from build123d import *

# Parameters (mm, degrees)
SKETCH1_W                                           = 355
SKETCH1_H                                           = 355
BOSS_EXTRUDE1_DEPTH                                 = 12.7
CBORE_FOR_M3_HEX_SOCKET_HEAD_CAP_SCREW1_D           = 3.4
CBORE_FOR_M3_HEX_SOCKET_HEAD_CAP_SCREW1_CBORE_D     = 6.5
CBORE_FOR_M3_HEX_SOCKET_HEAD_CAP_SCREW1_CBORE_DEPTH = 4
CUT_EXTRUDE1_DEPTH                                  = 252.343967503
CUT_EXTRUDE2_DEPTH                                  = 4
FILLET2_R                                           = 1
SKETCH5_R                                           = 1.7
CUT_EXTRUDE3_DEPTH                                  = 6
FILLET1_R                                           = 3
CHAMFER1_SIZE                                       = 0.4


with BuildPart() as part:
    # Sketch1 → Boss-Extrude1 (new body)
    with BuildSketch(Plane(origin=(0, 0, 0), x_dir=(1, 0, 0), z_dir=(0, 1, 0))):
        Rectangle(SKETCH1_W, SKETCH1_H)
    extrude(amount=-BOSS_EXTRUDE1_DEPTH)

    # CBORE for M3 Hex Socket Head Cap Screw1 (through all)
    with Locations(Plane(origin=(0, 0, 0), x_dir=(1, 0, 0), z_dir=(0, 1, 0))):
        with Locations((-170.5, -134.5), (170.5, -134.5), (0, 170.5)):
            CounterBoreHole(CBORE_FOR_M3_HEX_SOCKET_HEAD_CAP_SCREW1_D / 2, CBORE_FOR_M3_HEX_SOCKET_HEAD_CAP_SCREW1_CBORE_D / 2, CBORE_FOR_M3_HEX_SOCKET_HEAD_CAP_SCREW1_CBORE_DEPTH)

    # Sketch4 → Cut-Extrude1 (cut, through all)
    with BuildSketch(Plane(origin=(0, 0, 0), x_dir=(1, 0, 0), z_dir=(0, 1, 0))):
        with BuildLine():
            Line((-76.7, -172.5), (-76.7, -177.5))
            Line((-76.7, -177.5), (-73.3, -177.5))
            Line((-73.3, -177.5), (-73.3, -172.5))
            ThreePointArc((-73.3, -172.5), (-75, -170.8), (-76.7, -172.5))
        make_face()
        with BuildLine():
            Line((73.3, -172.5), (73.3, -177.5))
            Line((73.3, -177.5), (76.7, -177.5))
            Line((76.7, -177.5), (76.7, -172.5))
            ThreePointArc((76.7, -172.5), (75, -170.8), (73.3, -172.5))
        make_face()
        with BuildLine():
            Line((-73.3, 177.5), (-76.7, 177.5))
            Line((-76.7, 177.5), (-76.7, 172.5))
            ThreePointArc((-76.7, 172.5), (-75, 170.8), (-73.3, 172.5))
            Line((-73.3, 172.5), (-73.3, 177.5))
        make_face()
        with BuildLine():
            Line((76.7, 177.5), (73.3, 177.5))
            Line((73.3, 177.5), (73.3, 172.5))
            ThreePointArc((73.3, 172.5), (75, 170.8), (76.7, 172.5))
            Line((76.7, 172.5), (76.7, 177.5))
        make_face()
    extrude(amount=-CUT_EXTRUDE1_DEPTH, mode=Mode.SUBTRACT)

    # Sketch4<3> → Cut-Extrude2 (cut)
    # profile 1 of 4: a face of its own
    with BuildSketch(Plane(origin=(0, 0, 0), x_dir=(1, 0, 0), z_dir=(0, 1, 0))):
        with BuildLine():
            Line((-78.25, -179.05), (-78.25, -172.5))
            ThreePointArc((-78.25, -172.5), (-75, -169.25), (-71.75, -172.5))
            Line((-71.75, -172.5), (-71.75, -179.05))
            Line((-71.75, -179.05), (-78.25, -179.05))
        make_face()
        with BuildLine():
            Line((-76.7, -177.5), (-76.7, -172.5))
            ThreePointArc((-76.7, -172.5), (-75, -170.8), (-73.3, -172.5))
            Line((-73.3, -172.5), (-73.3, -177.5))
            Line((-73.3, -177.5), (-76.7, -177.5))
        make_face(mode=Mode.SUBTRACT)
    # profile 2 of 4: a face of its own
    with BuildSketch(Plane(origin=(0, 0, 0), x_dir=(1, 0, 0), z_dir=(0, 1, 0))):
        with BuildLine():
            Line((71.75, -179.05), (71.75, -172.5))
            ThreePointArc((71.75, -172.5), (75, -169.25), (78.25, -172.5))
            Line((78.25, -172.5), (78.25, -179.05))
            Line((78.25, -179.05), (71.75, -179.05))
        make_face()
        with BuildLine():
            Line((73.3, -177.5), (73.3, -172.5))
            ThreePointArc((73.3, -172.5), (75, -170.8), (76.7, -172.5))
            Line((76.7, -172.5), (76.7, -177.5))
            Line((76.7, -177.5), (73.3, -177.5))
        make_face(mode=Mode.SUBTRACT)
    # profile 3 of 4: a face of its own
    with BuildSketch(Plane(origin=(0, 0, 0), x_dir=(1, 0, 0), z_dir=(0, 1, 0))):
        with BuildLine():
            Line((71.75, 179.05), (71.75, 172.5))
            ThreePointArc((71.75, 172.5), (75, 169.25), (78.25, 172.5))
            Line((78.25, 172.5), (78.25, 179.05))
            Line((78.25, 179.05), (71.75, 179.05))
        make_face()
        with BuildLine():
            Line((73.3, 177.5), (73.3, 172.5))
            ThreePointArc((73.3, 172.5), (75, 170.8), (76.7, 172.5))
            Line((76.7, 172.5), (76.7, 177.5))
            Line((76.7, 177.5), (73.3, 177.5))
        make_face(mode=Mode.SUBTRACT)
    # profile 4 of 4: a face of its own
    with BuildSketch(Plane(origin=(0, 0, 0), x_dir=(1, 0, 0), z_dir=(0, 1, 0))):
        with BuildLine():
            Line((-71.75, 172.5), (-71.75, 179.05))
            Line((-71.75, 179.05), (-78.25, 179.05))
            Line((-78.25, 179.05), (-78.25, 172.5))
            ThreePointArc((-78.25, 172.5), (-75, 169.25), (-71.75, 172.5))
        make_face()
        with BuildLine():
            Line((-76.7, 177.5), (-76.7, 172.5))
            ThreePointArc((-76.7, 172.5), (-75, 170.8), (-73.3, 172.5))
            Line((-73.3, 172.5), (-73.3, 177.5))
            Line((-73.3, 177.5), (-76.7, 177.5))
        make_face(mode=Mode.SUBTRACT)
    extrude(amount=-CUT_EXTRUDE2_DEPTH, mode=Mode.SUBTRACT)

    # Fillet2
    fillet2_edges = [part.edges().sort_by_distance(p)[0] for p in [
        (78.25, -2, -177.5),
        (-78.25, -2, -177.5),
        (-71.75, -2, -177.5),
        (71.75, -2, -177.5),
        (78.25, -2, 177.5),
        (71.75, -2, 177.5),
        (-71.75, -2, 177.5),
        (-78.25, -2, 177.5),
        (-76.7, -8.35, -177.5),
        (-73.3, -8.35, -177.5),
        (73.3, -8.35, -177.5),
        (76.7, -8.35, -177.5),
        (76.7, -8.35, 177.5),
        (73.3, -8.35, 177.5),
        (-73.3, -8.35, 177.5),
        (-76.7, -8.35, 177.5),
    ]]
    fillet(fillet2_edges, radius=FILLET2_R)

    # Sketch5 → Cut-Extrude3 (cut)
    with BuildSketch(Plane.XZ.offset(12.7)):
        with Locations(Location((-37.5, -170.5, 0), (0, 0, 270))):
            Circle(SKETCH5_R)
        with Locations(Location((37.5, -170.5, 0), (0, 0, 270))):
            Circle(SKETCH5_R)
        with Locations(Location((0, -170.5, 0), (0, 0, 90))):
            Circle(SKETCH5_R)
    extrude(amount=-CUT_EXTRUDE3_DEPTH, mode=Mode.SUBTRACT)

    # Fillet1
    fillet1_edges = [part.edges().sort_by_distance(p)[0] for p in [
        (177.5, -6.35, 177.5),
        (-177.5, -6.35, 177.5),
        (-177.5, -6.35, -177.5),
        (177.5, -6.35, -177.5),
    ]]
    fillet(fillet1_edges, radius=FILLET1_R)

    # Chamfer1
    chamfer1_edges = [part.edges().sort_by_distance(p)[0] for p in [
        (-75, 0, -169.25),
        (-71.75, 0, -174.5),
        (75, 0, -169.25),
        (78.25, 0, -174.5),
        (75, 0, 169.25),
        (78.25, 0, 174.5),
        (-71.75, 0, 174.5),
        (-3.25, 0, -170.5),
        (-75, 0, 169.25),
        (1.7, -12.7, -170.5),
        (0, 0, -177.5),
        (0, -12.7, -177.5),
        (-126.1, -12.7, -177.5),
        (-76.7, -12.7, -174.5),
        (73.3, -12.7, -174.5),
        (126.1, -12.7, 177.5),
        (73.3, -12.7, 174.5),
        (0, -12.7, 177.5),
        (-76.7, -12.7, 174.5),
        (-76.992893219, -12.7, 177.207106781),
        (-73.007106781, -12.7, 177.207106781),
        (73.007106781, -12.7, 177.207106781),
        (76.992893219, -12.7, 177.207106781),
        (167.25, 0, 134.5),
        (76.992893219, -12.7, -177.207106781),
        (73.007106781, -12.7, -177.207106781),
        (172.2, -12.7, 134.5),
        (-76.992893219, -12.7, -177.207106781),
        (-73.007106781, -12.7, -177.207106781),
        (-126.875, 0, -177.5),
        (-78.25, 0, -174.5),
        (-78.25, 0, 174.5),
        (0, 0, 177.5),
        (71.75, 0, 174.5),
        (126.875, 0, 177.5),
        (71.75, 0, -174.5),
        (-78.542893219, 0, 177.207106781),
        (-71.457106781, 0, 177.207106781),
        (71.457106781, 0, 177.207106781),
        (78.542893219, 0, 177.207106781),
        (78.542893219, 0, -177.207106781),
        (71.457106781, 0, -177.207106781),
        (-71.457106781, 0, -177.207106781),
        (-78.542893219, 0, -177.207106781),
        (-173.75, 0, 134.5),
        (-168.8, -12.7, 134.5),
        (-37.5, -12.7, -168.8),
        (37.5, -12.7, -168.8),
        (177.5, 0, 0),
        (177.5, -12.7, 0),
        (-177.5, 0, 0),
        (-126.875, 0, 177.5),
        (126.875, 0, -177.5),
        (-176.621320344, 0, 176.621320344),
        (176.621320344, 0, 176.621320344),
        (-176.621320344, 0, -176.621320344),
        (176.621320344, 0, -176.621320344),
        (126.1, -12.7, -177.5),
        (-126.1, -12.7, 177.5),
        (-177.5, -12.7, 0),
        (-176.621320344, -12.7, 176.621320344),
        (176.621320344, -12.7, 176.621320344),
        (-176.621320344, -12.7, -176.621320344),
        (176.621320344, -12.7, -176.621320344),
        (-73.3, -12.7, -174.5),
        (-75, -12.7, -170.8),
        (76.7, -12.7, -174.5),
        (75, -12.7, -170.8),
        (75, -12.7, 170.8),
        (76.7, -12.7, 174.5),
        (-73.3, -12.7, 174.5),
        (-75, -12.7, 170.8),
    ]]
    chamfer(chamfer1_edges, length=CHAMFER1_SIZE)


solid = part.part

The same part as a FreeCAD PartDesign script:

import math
import FreeCAD as App
import Part
import Sketcher
Q = App.Units.Quantity


def edges_at(feature, points):
    """Names of the edges that pass closest to the given points."""
    edges = feature.Shape.Edges
    near = lambda p: min(range(len(edges)), key=lambda i: edges[i].distToShape(Part.Vertex(*p))[0])
    return sorted({f"Edge{near(p) + 1}" for p in points})

doc = App.newDocument("Part")
params = doc.addObject("Spreadsheet::Sheet", "Params")
for row, (alias, value) in enumerate([
    ("sketch1_width", "355 mm"),
    ("pad1_length", "12.7 mm"),
    ("sketch2_diameter", "3.4 mm"),
    ("hole_diameter", "3.4 mm"),
    ("hole_cbore_diameter", "6.5 mm"),
    ("hole_cbore_depth", "4 mm"),
    ("sketch3_radius", "1.7 mm"),
    ("sketch3_height", "5 mm"),
    ("sketch4_radius", "1.7 mm"),
    ("sketch4_height", "5 mm"),
    ("sketch4_radius2", "3.25 mm"),
    ("sketch4_height2", "6.55 mm"),
    ("pocket2_length", "4 mm"),
    ("fillet_radius", "1 mm"),
    ("sketch5_diameter", "3.4 mm"),
    ("pocket3_length", "6 mm"),
    ("fillet2_radius", "3 mm"),
    ("chamfer_size", "0.4 mm"),
], start=1):
    params.set(f"A{row}", alias)
    params.set(f"B{row}", "=" + value)
    params.setAlias(f"B{row}", alias)

body = doc.addObject("PartDesign::Body", "Body")

# Sketch on XZ plane
sketch1 = body.newObject("Sketcher::SketchObject", "Sketch")
sketch1.AttachmentSupport = (doc.getObject("XZ_Plane"), [""])
sketch1.MapMode = "FlatFace"
sketch1.addGeometry(Part.LineSegment(App.Vector(-178, -178, 0), App.Vector(-178, 178, 0)), False)
sketch1.addGeometry(Part.LineSegment(App.Vector(-178, 178, 0), App.Vector(178, 178, 0)), False)
sketch1.addGeometry(Part.LineSegment(App.Vector(178, 178, 0), App.Vector(178, -178, 0)), False)
sketch1.addGeometry(Part.LineSegment(App.Vector(178, -178, 0), App.Vector(-178, -178, 0)), False)
sketch1.addConstraint(Sketcher.Constraint("Coincident", 0, 2, 1, 1))
sketch1.addConstraint(Sketcher.Constraint("Coincident", 1, 2, 2, 1))
sketch1.addConstraint(Sketcher.Constraint("Coincident", 2, 2, 3, 1))
sketch1.addConstraint(Sketcher.Constraint("Coincident", 3, 2, 0, 1))
sketch1.addConstraint(Sketcher.Constraint("Vertical", 0))
sketch1.addConstraint(Sketcher.Constraint("Horizontal", 1))
sketch1.addConstraint(Sketcher.Constraint("Vertical", 2))
sketch1.addConstraint(Sketcher.Constraint("Horizontal", 3))
sketch1.addConstraint(Sketcher.Constraint("Symmetric", 0, 2, 2, 2, -1, 1))
sketch1.addConstraint(Sketcher.Constraint("Equal", 3, 0))
sketch1.addConstraint(Sketcher.Constraint("DistanceX", 1, 1, 1, 2, Q("355 mm")))
sketch1.setExpression("Constraints[10]", "Params.sketch1_width")
pad1 = body.newObject("PartDesign::Pad", "Pad")
pad1.Profile = sketch1
pad1.setExpression("Length", "Params.pad1_length")

# Sketch on XZ plane
sketch2 = body.newObject("Sketcher::SketchObject", "Sketch001")
sketch2.AttachmentSupport = (doc.getObject("XZ_Plane"), [""])
sketch2.MapMode = "FlatFace"
sketch2.addGeometry(Part.Circle(App.Vector(-170.5, 134.5, 0), App.Vector(0, 0, 1), 1.7), False)
sketch2.addGeometry(Part.Circle(App.Vector(170.5, 134.5, 0), App.Vector(0, 0, 1), 1.7), False)
sketch2.addGeometry(Part.Circle(App.Vector(0, -170.5, 0), App.Vector(0, 0, 1), 1.7), False)
sketch2.addConstraint(Sketcher.Constraint("Equal", 0, 1))
sketch2.addConstraint(Sketcher.Constraint("Equal", 1, 2))
sketch2.addConstraint(Sketcher.Constraint("Symmetric", 0, 3, 1, 3, -2))
sketch2.addConstraint(Sketcher.Constraint("PointOnObject", 2, 3, -2))
sketch2.addConstraint(Sketcher.Constraint("Diameter", 0, Q("3.4 mm")))
sketch2.addConstraint(Sketcher.Constraint("DistanceX", 0, 3, 1, 3, Q("341 mm")))
sketch2.addConstraint(Sketcher.Constraint("DistanceY", 2, 3, 0, 3, Q("305 mm")))
sketch2.addConstraint(Sketcher.Constraint("DistanceY", -1, 1, 0, 3, Q("134.5 mm")))
sketch2.setExpression("Constraints[4]", "Params.sketch2_diameter")
doc.recompute()
hole = body.newObject("PartDesign::Hole", "Hole")
hole.Profile = sketch2
hole.ThreadType = "None"
hole.setExpression("Diameter", "Params.hole_diameter")
hole.DepthType = "ThroughAll"
hole.HoleCutType = "Counterbore"
hole.setExpression("HoleCutDiameter", "Params.hole_cbore_diameter")
hole.setExpression("HoleCutDepth", "Params.hole_cbore_depth")
hole.Reversed = True

# Sketch on XZ plane
sketch3 = body.newObject("Sketcher::SketchObject", "Sketch002")
sketch3.AttachmentSupport = (doc.getObject("XZ_Plane"), [""])
sketch3.MapMode = "FlatFace"
sketch3.addGeometry(Part.LineSegment(App.Vector(-76.7, 172.5, 0), App.Vector(-76.7, 177.5, 0)), False)
sketch3.addGeometry(Part.LineSegment(App.Vector(-76.7, 177.5, 0), App.Vector(-73.3, 177.5, 0)), False)
sketch3.addGeometry(Part.LineSegment(App.Vector(-73.3, 177.5, 0), App.Vector(-73.3, 172.5, 0)), False)
sketch3.addGeometry(Part.ArcOfCircle(Part.Circle(App.Vector(-75, 172.5, 0), App.Vector(0, 0, 1), 1.7), math.radians(180), math.radians(360)), False)
sketch3.addGeometry(Part.LineSegment(App.Vector(73.3, 172.5, 0), App.Vector(73.3, 177.5, 0)), False)
sketch3.addGeometry(Part.LineSegment(App.Vector(73.3, 177.5, 0), App.Vector(76.7, 177.5, 0)), False)
sketch3.addGeometry(Part.LineSegment(App.Vector(76.7, 177.5, 0), App.Vector(76.7, 172.5, 0)), False)
sketch3.addGeometry(Part.ArcOfCircle(Part.Circle(App.Vector(75, 172.5, 0), App.Vector(0, 0, 1), 1.7), math.radians(180), math.radians(360)), False)
sketch3.addGeometry(Part.LineSegment(App.Vector(-73.3, -177.5, 0), App.Vector(-76.7, -177.5, 0)), False)
sketch3.addGeometry(Part.LineSegment(App.Vector(-76.7, -177.5, 0), App.Vector(-76.7, -172.5, 0)), False)
sketch3.addGeometry(Part.ArcOfCircle(Part.Circle(App.Vector(-75, -172.5, 0), App.Vector(0, 0, 1), 1.7), math.radians(0), math.radians(180)), False)
sketch3.addGeometry(Part.LineSegment(App.Vector(-73.3, -172.5, 0), App.Vector(-73.3, -177.5, 0)), False)
sketch3.addGeometry(Part.LineSegment(App.Vector(76.7, -177.5, 0), App.Vector(73.3, -177.5, 0)), False)
sketch3.addGeometry(Part.LineSegment(App.Vector(73.3, -177.5, 0), App.Vector(73.3, -172.5, 0)), False)
sketch3.addGeometry(Part.ArcOfCircle(Part.Circle(App.Vector(75, -172.5, 0), App.Vector(0, 0, 1), 1.7), math.radians(0), math.radians(180)), False)
sketch3.addGeometry(Part.LineSegment(App.Vector(76.7, -172.5, 0), App.Vector(76.7, -177.5, 0)), False)
sketch3.addConstraint(Sketcher.Constraint("Coincident", 0, 2, 1, 1))
sketch3.addConstraint(Sketcher.Constraint("Coincident", 1, 2, 2, 1))
sketch3.addConstraint(Sketcher.Constraint("Tangent", 2, 2, 3, 2))
sketch3.addConstraint(Sketcher.Constraint("Tangent", 3, 1, 0, 1))
sketch3.addConstraint(Sketcher.Constraint("Coincident", 4, 2, 5, 1))
sketch3.addConstraint(Sketcher.Constraint("Coincident", 5, 2, 6, 1))
sketch3.addConstraint(Sketcher.Constraint("Tangent", 6, 2, 7, 2))
sketch3.addConstraint(Sketcher.Constraint("Tangent", 7, 1, 4, 1))
sketch3.addConstraint(Sketcher.Constraint("Coincident", 8, 2, 9, 1))
sketch3.addConstraint(Sketcher.Constraint("Tangent", 9, 2, 10, 2))
sketch3.addConstraint(Sketcher.Constraint("Tangent", 10, 1, 11, 1))
sketch3.addConstraint(Sketcher.Constraint("Coincident", 11, 2, 8, 1))
sketch3.addConstraint(Sketcher.Constraint("Coincident", 12, 2, 13, 1))
sketch3.addConstraint(Sketcher.Constraint("Tangent", 13, 2, 14, 2))
sketch3.addConstraint(Sketcher.Constraint("Tangent", 14, 1, 15, 1))
sketch3.addConstraint(Sketcher.Constraint("Coincident", 15, 2, 12, 1))
sketch3.addConstraint(Sketcher.Constraint("Vertical", 0))
sketch3.addConstraint(Sketcher.Constraint("Horizontal", 1))
sketch3.addConstraint(Sketcher.Constraint("Vertical", 2))
sketch3.addConstraint(Sketcher.Constraint("Vertical", 4))
sketch3.addConstraint(Sketcher.Constraint("Horizontal", 5))
sketch3.addConstraint(Sketcher.Constraint("Vertical", 6))
sketch3.addConstraint(Sketcher.Constraint("Horizontal", 8))
sketch3.addConstraint(Sketcher.Constraint("Vertical", 9))
sketch3.addConstraint(Sketcher.Constraint("Vertical", 11))
sketch3.addConstraint(Sketcher.Constraint("Horizontal", 12))
sketch3.addConstraint(Sketcher.Constraint("Vertical", 13))
sketch3.addConstraint(Sketcher.Constraint("Vertical", 15))
sketch3.addConstraint(Sketcher.Constraint("Equal", 3, 7))
sketch3.addConstraint(Sketcher.Constraint("Equal", 7, 10))
sketch3.addConstraint(Sketcher.Constraint("Equal", 10, 14))
sketch3.addConstraint(Sketcher.Constraint("Symmetric", 7, 3, 10, 3, -1, 1))
sketch3.addConstraint(Sketcher.Constraint("Symmetric", 3, 3, 14, 3, -1, 1))
sketch3.addConstraint(Sketcher.Constraint("Symmetric", 3, 3, 7, 3, -2))
sketch3.addConstraint(Sketcher.Constraint("Horizontal", 1, 2, 4, 2))
sketch3.addConstraint(Sketcher.Constraint("Horizontal", 11, 2, 12, 2))
sketch3.addConstraint(Sketcher.Constraint("Equal", 6, 9))
sketch3.addConstraint(Sketcher.Constraint("Radius", 3, Q("1.7 mm")))
sketch3.addConstraint(Sketcher.Constraint("DistanceY", 0, 1, 0, 2, Q("5 mm")))
sketch3.addConstraint(Sketcher.Constraint("DistanceX", 3, 3, -1, 1, Q("75 mm")))
sketch3.addConstraint(Sketcher.Constraint("DistanceY", 10, 3, 3, 3, Q("345 mm")))
sketch3.setExpression("Constraints[37]", "Params.sketch3_radius")
sketch3.setExpression("Constraints[38]", "Params.sketch3_height")
pocket1 = body.newObject("PartDesign::Pocket", "Pocket")
pocket1.Profile = sketch3
pocket1.Type = "ThroughAll"
pocket1.Reversed = True

# Sketch on XZ plane
sketch4 = body.newObject("Sketcher::SketchObject", "Sketch003")
sketch4.AttachmentSupport = (doc.getObject("XZ_Plane"), [""])
sketch4.MapMode = "FlatFace"
sketch4.addGeometry(Part.LineSegment(App.Vector(-78.2, 172.5, 0), App.Vector(-78.2, 179.1, 0)), False)
sketch4.addGeometry(Part.LineSegment(App.Vector(-78.2, 179.1, 0), App.Vector(-71.8, 179.1, 0)), False)
sketch4.addGeometry(Part.LineSegment(App.Vector(-71.8, 179.1, 0), App.Vector(-71.8, 172.5, 0)), False)
sketch4.addGeometry(Part.ArcOfCircle(Part.Circle(App.Vector(-75, 172.5, 0), App.Vector(0, 0, 1), 3.2), math.radians(180), math.radians(360)), False)
sketch4.addGeometry(Part.LineSegment(App.Vector(-76.7, 177.5, 0), App.Vector(-76.7, 172.5, 0)), False)
sketch4.addGeometry(Part.ArcOfCircle(Part.Circle(App.Vector(-75, 172.5, 0), App.Vector(0, 0, 1), 1.7), math.radians(180), math.radians(360)), False)
sketch4.addGeometry(Part.LineSegment(App.Vector(-73.3, 172.5, 0), App.Vector(-73.3, 177.5, 0)), False)
sketch4.addGeometry(Part.LineSegment(App.Vector(-73.3, 177.5, 0), App.Vector(-76.7, 177.5, 0)), False)
sketch4.addGeometry(Part.LineSegment(App.Vector(71.8, 172.5, 0), App.Vector(71.8, 179.1, 0)), False)
sketch4.addGeometry(Part.LineSegment(App.Vector(71.8, 179.1, 0), App.Vector(78.2, 179.1, 0)), False)
sketch4.addGeometry(Part.LineSegment(App.Vector(78.2, 179.1, 0), App.Vector(78.2, 172.5, 0)), False)
sketch4.addGeometry(Part.ArcOfCircle(Part.Circle(App.Vector(75, 172.5, 0), App.Vector(0, 0, 1), 3.2), math.radians(180), math.radians(360)), False)
sketch4.addGeometry(Part.LineSegment(App.Vector(73.3, 177.5, 0), App.Vector(73.3, 172.5, 0)), False)
sketch4.addGeometry(Part.ArcOfCircle(Part.Circle(App.Vector(75, 172.5, 0), App.Vector(0, 0, 1), 1.7), math.radians(180), math.radians(360)), False)
sketch4.addGeometry(Part.LineSegment(App.Vector(76.7, 172.5, 0), App.Vector(76.7, 177.5, 0)), False)
sketch4.addGeometry(Part.LineSegment(App.Vector(76.7, 177.5, 0), App.Vector(73.3, 177.5, 0)), False)
sketch4.addGeometry(Part.LineSegment(App.Vector(71.8, -179.1, 0), App.Vector(71.8, -172.5, 0)), False)
sketch4.addGeometry(Part.ArcOfCircle(Part.Circle(App.Vector(75, -172.5, 0), App.Vector(0, 0, 1), 3.2), math.radians(0), math.radians(180)), False)
sketch4.addGeometry(Part.LineSegment(App.Vector(78.2, -172.5, 0), App.Vector(78.2, -179.1, 0)), False)
sketch4.addGeometry(Part.LineSegment(App.Vector(78.2, -179.1, 0), App.Vector(71.8, -179.1, 0)), False)
sketch4.addGeometry(Part.LineSegment(App.Vector(73.3, -172.5, 0), App.Vector(73.3, -177.5, 0)), False)
sketch4.addGeometry(Part.LineSegment(App.Vector(73.3, -177.5, 0), App.Vector(76.7, -177.5, 0)), False)
sketch4.addGeometry(Part.LineSegment(App.Vector(76.7, -177.5, 0), App.Vector(76.7, -172.5, 0)), False)
sketch4.addGeometry(Part.ArcOfCircle(Part.Circle(App.Vector(75, -172.5, 0), App.Vector(0, 0, 1), 1.7), math.radians(0), math.radians(180)), False)
sketch4.addGeometry(Part.LineSegment(App.Vector(-71.8, -172.5, 0), App.Vector(-71.8, -179.1, 0)), False)
sketch4.addGeometry(Part.LineSegment(App.Vector(-71.8, -179.1, 0), App.Vector(-78.2, -179.1, 0)), False)
sketch4.addGeometry(Part.LineSegment(App.Vector(-78.2, -179.1, 0), App.Vector(-78.2, -172.5, 0)), False)
sketch4.addGeometry(Part.ArcOfCircle(Part.Circle(App.Vector(-75, -172.5, 0), App.Vector(0, 0, 1), 3.2), math.radians(0), math.radians(180)), False)
sketch4.addGeometry(Part.LineSegment(App.Vector(-76.7, -172.5, 0), App.Vector(-76.7, -177.5, 0)), False)
sketch4.addGeometry(Part.LineSegment(App.Vector(-76.7, -177.5, 0), App.Vector(-73.3, -177.5, 0)), False)
sketch4.addGeometry(Part.LineSegment(App.Vector(-73.3, -177.5, 0), App.Vector(-73.3, -172.5, 0)), False)
sketch4.addGeometry(Part.ArcOfCircle(Part.Circle(App.Vector(-75, -172.5, 0), App.Vector(0, 0, 1), 1.7), math.radians(0), math.radians(180)), False)
sketch4.addConstraint(Sketcher.Constraint("Coincident", 0, 2, 1, 1))
sketch4.addConstraint(Sketcher.Constraint("Coincident", 1, 2, 2, 1))
sketch4.addConstraint(Sketcher.Constraint("Tangent", 2, 2, 3, 2))
sketch4.addConstraint(Sketcher.Constraint("Tangent", 3, 1, 0, 1))
sketch4.addConstraint(Sketcher.Constraint("Tangent", 4, 2, 5, 1))
sketch4.addConstraint(Sketcher.Constraint("Tangent", 5, 2, 6, 1))
sketch4.addConstraint(Sketcher.Constraint("Coincident", 6, 2, 7, 1))
sketch4.addConstraint(Sketcher.Constraint("Coincident", 7, 2, 4, 1))
sketch4.addConstraint(Sketcher.Constraint("Coincident", 8, 2, 9, 1))
sketch4.addConstraint(Sketcher.Constraint("Coincident", 9, 2, 10, 1))
sketch4.addConstraint(Sketcher.Constraint("Tangent", 10, 2, 11, 2))
sketch4.addConstraint(Sketcher.Constraint("Tangent", 11, 1, 8, 1))
sketch4.addConstraint(Sketcher.Constraint("Tangent", 12, 2, 13, 1))
sketch4.addConstraint(Sketcher.Constraint("Tangent", 13, 2, 14, 1))
sketch4.addConstraint(Sketcher.Constraint("Coincident", 14, 2, 15, 1))
sketch4.addConstraint(Sketcher.Constraint("Coincident", 15, 2, 12, 1))
sketch4.addConstraint(Sketcher.Constraint("Tangent", 16, 2, 17, 2))
sketch4.addConstraint(Sketcher.Constraint("Tangent", 17, 1, 18, 1))
sketch4.addConstraint(Sketcher.Constraint("Coincident", 18, 2, 19, 1))
sketch4.addConstraint(Sketcher.Constraint("Coincident", 19, 2, 16, 1))
sketch4.addConstraint(Sketcher.Constraint("Coincident", 20, 2, 21, 1))
sketch4.addConstraint(Sketcher.Constraint("Coincident", 21, 2, 22, 1))
sketch4.addConstraint(Sketcher.Constraint("Tangent", 22, 2, 23, 1))
sketch4.addConstraint(Sketcher.Constraint("Tangent", 23, 2, 20, 1))
sketch4.addConstraint(Sketcher.Constraint("Coincident", 24, 2, 25, 1))
sketch4.addConstraint(Sketcher.Constraint("Coincident", 25, 2, 26, 1))
sketch4.addConstraint(Sketcher.Constraint("Tangent", 26, 2, 27, 2))
sketch4.addConstraint(Sketcher.Constraint("Tangent", 27, 1, 24, 1))
sketch4.addConstraint(Sketcher.Constraint("Coincident", 28, 2, 29, 1))
sketch4.addConstraint(Sketcher.Constraint("Coincident", 29, 2, 30, 1))
sketch4.addConstraint(Sketcher.Constraint("Tangent", 30, 2, 31, 1))
sketch4.addConstraint(Sketcher.Constraint("Tangent", 31, 2, 28, 1))
sketch4.addConstraint(Sketcher.Constraint("Vertical", 0))
sketch4.addConstraint(Sketcher.Constraint("Horizontal", 1))
sketch4.addConstraint(Sketcher.Constraint("Vertical", 2))
sketch4.addConstraint(Sketcher.Constraint("Vertical", 4))
sketch4.addConstraint(Sketcher.Constraint("Vertical", 6))
sketch4.addConstraint(Sketcher.Constraint("Horizontal", 7))
sketch4.addConstraint(Sketcher.Constraint("Vertical", 8))
sketch4.addConstraint(Sketcher.Constraint("Horizontal", 9))
sketch4.addConstraint(Sketcher.Constraint("Vertical", 10))
sketch4.addConstraint(Sketcher.Constraint("Vertical", 12))
sketch4.addConstraint(Sketcher.Constraint("Vertical", 14))
sketch4.addConstraint(Sketcher.Constraint("Horizontal", 15))
sketch4.addConstraint(Sketcher.Constraint("Vertical", 16))
sketch4.addConstraint(Sketcher.Constraint("Vertical", 18))
sketch4.addConstraint(Sketcher.Constraint("Horizontal", 19))
sketch4.addConstraint(Sketcher.Constraint("Vertical", 20))
sketch4.addConstraint(Sketcher.Constraint("Horizontal", 21))
sketch4.addConstraint(Sketcher.Constraint("Vertical", 22))
sketch4.addConstraint(Sketcher.Constraint("Vertical", 24))
sketch4.addConstraint(Sketcher.Constraint("Horizontal", 25))
sketch4.addConstraint(Sketcher.Constraint("Vertical", 26))
sketch4.addConstraint(Sketcher.Constraint("Vertical", 28))
sketch4.addConstraint(Sketcher.Constraint("Horizontal", 29))
sketch4.addConstraint(Sketcher.Constraint("Vertical", 30))
sketch4.addConstraint(Sketcher.Constraint("Coincident", 5, 3, 3, 3))
sketch4.addConstraint(Sketcher.Constraint("Coincident", 13, 3, 11, 3))
sketch4.addConstraint(Sketcher.Constraint("Coincident", 23, 3, 17, 3))
sketch4.addConstraint(Sketcher.Constraint("Coincident", 31, 3, 27, 3))
sketch4.addConstraint(Sketcher.Constraint("Equal", 3, 11))
sketch4.addConstraint(Sketcher.Constraint("Equal", 5, 13))
sketch4.addConstraint(Sketcher.Constraint("Equal", 11, 17))
sketch4.addConstraint(Sketcher.Constraint("Equal", 13, 23))
sketch4.addConstraint(Sketcher.Constraint("Equal", 17, 27))
sketch4.addConstraint(Sketcher.Constraint("Equal", 23, 31))
sketch4.addConstraint(Sketcher.Constraint("Symmetric", 3, 3, 17, 3, -1, 1))
sketch4.addConstraint(Sketcher.Constraint("Symmetric", 11, 3, 27, 3, -1, 1))
sketch4.addConstraint(Sketcher.Constraint("Symmetric", 3, 3, 11, 3, -2))
sketch4.addConstraint(Sketcher.Constraint("Horizontal", 1, 2, 8, 2))
sketch4.addConstraint(Sketcher.Constraint("Horizontal", 7, 2, 14, 2))
sketch4.addConstraint(Sketcher.Constraint("Horizontal", 19, 2, 24, 2))
sketch4.addConstraint(Sketcher.Constraint("Horizontal", 21, 2, 28, 2))
sketch4.addConstraint(Sketcher.Constraint("Equal", 10, 16))
sketch4.addConstraint(Sketcher.Constraint("Equal", 14, 20))
sketch4.addConstraint(Sketcher.Constraint("Radius", 5, Q("1.7 mm")))
sketch4.addConstraint(Sketcher.Constraint("DistanceY", 4, 2, 4, 1, Q("5 mm")))
sketch4.addConstraint(Sketcher.Constraint("Radius", 3, Q("3.25 mm")))
sketch4.addConstraint(Sketcher.Constraint("DistanceX", 3, 3, -1, 1, Q("75 mm")))
sketch4.addConstraint(Sketcher.Constraint("DistanceY", 17, 3, 11, 3, Q("345 mm")))
sketch4.addConstraint(Sketcher.Constraint("DistanceY", 0, 1, 0, 2, Q("6.55 mm")))
sketch4.setExpression("Constraints[75]", "Params.sketch4_radius")
sketch4.setExpression("Constraints[76]", "Params.sketch4_height")
sketch4.setExpression("Constraints[77]", "Params.sketch4_radius2")
sketch4.setExpression("Constraints[80]", "Params.sketch4_height2")
pocket2 = body.newObject("PartDesign::Pocket", "Pocket001")
pocket2.Profile = sketch4
pocket2.setExpression("Length", "Params.pocket2_length")
pocket2.Reversed = True
doc.recompute()

fillet = body.newObject("PartDesign::Fillet", "Fillet")
fillet.Base = (pocket2, edges_at(pocket2, [
    (78.25, -2, -177.5),
    (-78.25, -2, -177.5),
    (-71.75, -2, -177.5),
    (71.75, -2, -177.5),
    (78.25, -2, 177.5),
    (71.75, -2, 177.5),
    (-71.75, -2, 177.5),
    (-78.25, -2, 177.5),
    (-76.7, -8.35, -177.5),
    (-73.3, -8.35, -177.5),
    (73.3, -8.35, -177.5),
    (76.7, -8.35, -177.5),
    (76.7, -8.35, 177.5),
    (73.3, -8.35, 177.5),
    (-73.3, -8.35, 177.5),
    (-76.7, -8.35, 177.5),
]))
fillet.setExpression("Radius", "Params.fillet_radius")

# Sketch on XZ plane
sketch5 = body.newObject("Sketcher::SketchObject", "Sketch004")
sketch5.AttachmentSupport = (doc.getObject("XZ_Plane"), [""])
sketch5.MapMode = "FlatFace"
sketch5.AttachmentOffset = App.Placement(App.Vector(0, 0, 12.7), App.Rotation())
sketch5.addGeometry(Part.Circle(App.Vector(-37.5, -170.5, 0), App.Vector(0, 0, 1), 1.7), False)
sketch5.addGeometry(Part.Circle(App.Vector(37.5, -170.5, 0), App.Vector(0, 0, 1), 1.7), False)
sketch5.addGeometry(Part.Circle(App.Vector(0, -170.5, 0), App.Vector(0, 0, 1), 1.7), False)
sketch5.addConstraint(Sketcher.Constraint("Equal", 0, 1))
sketch5.addConstraint(Sketcher.Constraint("Equal", 1, 2))
sketch5.addConstraint(Sketcher.Constraint("Symmetric", 0, 3, 1, 3, -2))
sketch5.addConstraint(Sketcher.Constraint("PointOnObject", 2, 3, -2))
sketch5.addConstraint(Sketcher.Constraint("Horizontal", 1, 3, 2, 3))
sketch5.addConstraint(Sketcher.Constraint("Diameter", 0, Q("3.4 mm")))
sketch5.addConstraint(Sketcher.Constraint("DistanceX", 0, 3, 1, 3, Q("75 mm")))
sketch5.addConstraint(Sketcher.Constraint("DistanceY", 0, 3, -1, 1, Q("170.5 mm")))
sketch5.setExpression("Constraints[5]", "Params.sketch5_diameter")
pocket3 = body.newObject("PartDesign::Pocket", "Pocket002")
pocket3.Profile = sketch5
pocket3.setExpression("Length", "Params.pocket3_length")
doc.recompute()

fillet2 = body.newObject("PartDesign::Fillet", "Fillet001")
fillet2.Base = (pocket3, edges_at(pocket3, [
    (177.5, -6.35, 177.5),
    (-177.5, -6.35, 177.5),
    (-177.5, -6.35, -177.5),
    (177.5, -6.35, -177.5),
]))
fillet2.setExpression("Radius", "Params.fillet2_radius")
doc.recompute()

chamfer = body.newObject("PartDesign::Chamfer", "Chamfer")
chamfer.Base = (fillet2, edges_at(fillet2, [
    (-75, 0, -169.25),
    (-71.75, 0, -174.5),
    (75, 0, -169.25),
    (78.25, 0, -174.5),
    (75, 0, 169.25),
    (78.25, 0, 174.5),
    (-71.75, 0, 174.5),
    (-3.25, 0, -170.5),
    (-75, 0, 169.25),
    (1.7, -12.7, -170.5),
    (0, 0, -177.5),
    (0, -12.7, -177.5),
    (-126.1, -12.7, -177.5),
    (-76.7, -12.7, -174.5),
    (73.3, -12.7, -174.5),
    (126.1, -12.7, 177.5),
    (73.3, -12.7, 174.5),
    (0, -12.7, 177.5),
    (-76.7, -12.7, 174.5),
    (-76.993, -12.7, 177.207),
    (-73.007, -12.7, 177.207),
    (73.007, -12.7, 177.207),
    (76.993, -12.7, 177.207),
    (167.25, 0, 134.5),
    (76.993, -12.7, -177.207),
    (73.007, -12.7, -177.207),
    (172.2, -12.7, 134.5),
    (-76.993, -12.7, -177.207),
    (-73.007, -12.7, -177.207),
    (-126.875, 0, -177.5),
    (-78.25, 0, -174.5),
    (-78.25, 0, 174.5),
    (0, 0, 177.5),
    (71.75, 0, 174.5),
    (126.875, 0, 177.5),
    (71.75, 0, -174.5),
    (-78.543, 0, 177.207),
    (-71.457, 0, 177.207),
    (71.457, 0, 177.207),
    (78.543, 0, 177.207),
    (78.543, 0, -177.207),
    (71.457, 0, -177.207),
    (-71.457, 0, -177.207),
    (-78.543, 0, -177.207),
    (-173.75, 0, 134.5),
    (-168.8, -12.7, 134.5),
    (-37.5, -12.7, -168.8),
    (37.5, -12.7, -168.8),
    (177.5, 0, 0),
    (177.5, -12.7, 0),
    (-177.5, 0, 0),
    (-126.875, 0, 177.5),
    (126.875, 0, -177.5),
    (-176.621, 0, 176.621),
    (176.621, 0, 176.621),
    (-176.621, 0, -176.621),
    (176.621, 0, -176.621),
    (126.1, -12.7, -177.5),
    (-126.1, -12.7, 177.5),
    (-177.5, -12.7, 0),
    (-176.621, -12.7, 176.621),
    (176.621, -12.7, 176.621),
    (-176.621, -12.7, -176.621),
    (176.621, -12.7, -176.621),
    (-73.3, -12.7, -174.5),
    (-75, -12.7, -170.8),
    (76.7, -12.7, -174.5),
    (75, -12.7, -170.8),
    (75, -12.7, 170.8),
    (76.7, -12.7, 174.5),
    (-73.3, -12.7, 174.5),
    (-75, -12.7, 170.8),
]))
chamfer.setExpression("Size", "Params.chamfer_size")

doc.recompute()
